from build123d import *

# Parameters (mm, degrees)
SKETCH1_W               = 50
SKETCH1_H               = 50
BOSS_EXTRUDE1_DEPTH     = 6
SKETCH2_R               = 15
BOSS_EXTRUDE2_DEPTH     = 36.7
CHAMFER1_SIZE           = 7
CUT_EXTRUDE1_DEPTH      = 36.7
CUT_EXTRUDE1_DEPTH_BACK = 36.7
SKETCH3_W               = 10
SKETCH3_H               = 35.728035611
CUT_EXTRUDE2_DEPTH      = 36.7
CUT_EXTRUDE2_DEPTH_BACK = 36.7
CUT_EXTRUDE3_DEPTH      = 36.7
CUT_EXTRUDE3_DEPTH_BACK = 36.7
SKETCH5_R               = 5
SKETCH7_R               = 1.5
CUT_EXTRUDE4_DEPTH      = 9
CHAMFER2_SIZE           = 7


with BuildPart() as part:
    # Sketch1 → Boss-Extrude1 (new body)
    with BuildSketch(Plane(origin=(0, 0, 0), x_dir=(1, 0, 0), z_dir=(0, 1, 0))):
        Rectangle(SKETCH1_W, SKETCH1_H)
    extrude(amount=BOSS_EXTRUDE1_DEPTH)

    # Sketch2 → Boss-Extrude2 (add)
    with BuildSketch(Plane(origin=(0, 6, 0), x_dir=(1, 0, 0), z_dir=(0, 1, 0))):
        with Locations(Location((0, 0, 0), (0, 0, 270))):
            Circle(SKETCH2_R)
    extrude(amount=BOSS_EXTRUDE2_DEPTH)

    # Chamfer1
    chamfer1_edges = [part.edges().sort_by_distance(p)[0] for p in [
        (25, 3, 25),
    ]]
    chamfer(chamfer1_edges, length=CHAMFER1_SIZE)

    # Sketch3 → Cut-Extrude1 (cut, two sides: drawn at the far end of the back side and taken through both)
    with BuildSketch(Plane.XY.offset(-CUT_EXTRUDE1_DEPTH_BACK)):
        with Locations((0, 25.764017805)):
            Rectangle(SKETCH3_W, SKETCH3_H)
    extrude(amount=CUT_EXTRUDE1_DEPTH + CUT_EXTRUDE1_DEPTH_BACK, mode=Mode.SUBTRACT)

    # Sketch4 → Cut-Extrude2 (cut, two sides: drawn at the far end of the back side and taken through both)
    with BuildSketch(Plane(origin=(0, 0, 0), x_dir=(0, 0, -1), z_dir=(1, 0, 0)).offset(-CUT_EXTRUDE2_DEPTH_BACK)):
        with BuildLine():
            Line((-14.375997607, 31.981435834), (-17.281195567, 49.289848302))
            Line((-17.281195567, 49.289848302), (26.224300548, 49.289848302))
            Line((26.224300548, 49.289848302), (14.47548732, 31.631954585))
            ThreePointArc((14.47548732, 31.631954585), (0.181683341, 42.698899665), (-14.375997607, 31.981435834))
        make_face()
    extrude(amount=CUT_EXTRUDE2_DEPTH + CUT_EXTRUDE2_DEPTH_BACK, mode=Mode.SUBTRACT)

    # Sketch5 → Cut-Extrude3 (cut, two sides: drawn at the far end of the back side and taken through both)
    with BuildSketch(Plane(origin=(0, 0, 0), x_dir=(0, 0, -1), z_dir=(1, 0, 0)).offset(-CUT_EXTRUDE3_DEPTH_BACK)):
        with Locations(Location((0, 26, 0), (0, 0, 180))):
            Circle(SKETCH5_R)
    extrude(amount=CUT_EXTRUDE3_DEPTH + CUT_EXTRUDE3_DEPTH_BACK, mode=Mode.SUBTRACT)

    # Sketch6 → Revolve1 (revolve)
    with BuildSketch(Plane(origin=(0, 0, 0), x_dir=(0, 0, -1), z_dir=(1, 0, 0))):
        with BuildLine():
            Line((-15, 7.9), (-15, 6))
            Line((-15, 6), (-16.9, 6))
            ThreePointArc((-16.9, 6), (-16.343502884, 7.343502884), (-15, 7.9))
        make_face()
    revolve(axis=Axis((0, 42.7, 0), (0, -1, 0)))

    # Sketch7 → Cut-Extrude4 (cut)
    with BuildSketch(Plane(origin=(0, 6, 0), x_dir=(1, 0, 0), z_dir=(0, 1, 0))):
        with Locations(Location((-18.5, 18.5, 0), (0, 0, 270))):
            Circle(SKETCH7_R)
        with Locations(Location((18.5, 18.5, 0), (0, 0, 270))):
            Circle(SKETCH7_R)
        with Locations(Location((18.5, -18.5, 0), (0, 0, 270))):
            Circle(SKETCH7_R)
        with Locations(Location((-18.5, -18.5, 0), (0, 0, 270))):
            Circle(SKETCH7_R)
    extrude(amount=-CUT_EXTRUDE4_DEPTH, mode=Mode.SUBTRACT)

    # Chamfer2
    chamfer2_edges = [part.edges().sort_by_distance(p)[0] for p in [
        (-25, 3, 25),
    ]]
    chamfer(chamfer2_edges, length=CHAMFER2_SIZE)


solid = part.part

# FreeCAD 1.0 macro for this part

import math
import FreeCAD as App
import Part
import Sketcher
Q = App.Units.Quantity


def edges_at(feature, points):
    """Names of the edges that pass closest to the given points."""
    edges = feature.Shape.Edges
    near = lambda p: min(range(len(edges)), key=lambda i: edges[i].distToShape(Part.Vertex(*p))[0])
    return sorted({f"Edge{near(p) + 1}" for p in points})


def add_polygon(sketch, points):
    """Adds a closed chain of lines whose ends are joined by coincident constraints."""
    first, n = sketch.GeometryCount, len(points)
    for a, b in zip(points, points[1:] + points[:1]):
        sketch.addGeometry(Part.LineSegment(App.Vector(*a, 0), App.Vector(*b, 0)), False)
    for i in range(n):
        sketch.addConstraint(Sketcher.Constraint("Coincident", first + i, 2, first + (i + 1) % n, 1))

doc = App.newDocument("Part")
body = doc.addObject("PartDesign::Body", "Body")

# Sketch on XZ plane
sketch1 = body.newObject("Sketcher::SketchObject", "Sketch")
sketch1.AttachmentSupport = (doc.getObject("XZ_Plane"), [""])
sketch1.MapMode = "FlatFace"
add_polygon(sketch1, [(-25, -25), (-25, 25), (25, 25), (25, -25)])  # lines 0-3
sketch1.addConstraint(Sketcher.Constraint("Vertical", 0))
sketch1.addConstraint(Sketcher.Constraint("Horizontal", 1))
sketch1.addConstraint(Sketcher.Constraint("Vertical", 2))
sketch1.addConstraint(Sketcher.Constraint("Horizontal", 3))
sketch1.addConstraint(Sketcher.Constraint("Symmetric", 0, 2, 2, 2, -1, 1))
sketch1.addConstraint(Sketcher.Constraint("Equal", 3, 0))
sketch1.addConstraint(Sketcher.Constraint("DistanceX", 1, 1, 1, 2, Q("50 mm")))
pad1 = body.newObject("PartDesign::Pad", "Pad")
pad1.Profile = sketch1
pad1.Length = 6
pad1.Reversed = True

# Sketch on XZ plane
sketch2 = body.newObject("Sketcher::SketchObject", "Sketch001")
sketch2.AttachmentSupport = (doc.getObject("XZ_Plane"), [""])
sketch2.MapMode = "FlatFace"
sketch2.AttachmentOffset = App.Placement(App.Vector(0, 0, -6), App.Rotation())
sketch2.addGeometry(Part.Circle(App.Vector(0, 0, 0), App.Vector(0, 0, 1), 15), False)
sketch2.addConstraint(Sketcher.Constraint("Coincident", 0, 3, -1, 1))
sketch2.addConstraint(Sketcher.Constraint("Diameter", 0, Q("30 mm")))
pad2 = body.newObject("PartDesign::Pad", "Pad001")
pad2.Profile = sketch2
pad2.Length = 36.7
pad2.Reversed = True
doc.recompute()

chamfer = body.newObject("PartDesign::Chamfer", "Chamfer")
chamfer.Base = (pad2, edges_at(pad2, [(25, 3, 25)]))
chamfer.Size = 7

# Sketch on XY plane
sketch3 = body.newObject("Sketcher::SketchObject", "Sketch002")
sketch3.AttachmentSupport = (doc.getObject("XY_Plane"), [""])
sketch3.MapMode = "FlatFace"
add_polygon(sketch3, [(-5, 44), (-5, 8), (5, 8), (5, 44)])  # lines 0-3
sketch3.addConstraint(Sketcher.Constraint("Vertical", 0))
sketch3.addConstraint(Sketcher.Constraint("Horizontal", 1))
sketch3.addConstraint(Sketcher.Constraint("Vertical", 2))
sketch3.addConstraint(Sketcher.Constraint("Horizontal", 3))
sketch3.addConstraint(Sketcher.Constraint("DistanceX", 1, 1, 1, 2, Q("10 mm")))
sketch3.addConstraint(Sketcher.Constraint("DistanceX", 0, 2, -1, 1, Q("5 mm")))
sketch3.addConstraint(Sketcher.Constraint("DistanceY", -1, 1, 0, 2, Q("7.9 mm")))
sketch3.addConstraint(Sketcher.Constraint("DistanceY", 0, 2, 0, 1, Q("35.728036 mm")))
pocket1 = body.newObject("PartDesign::Pocket", "Pocket")
pocket1.Profile = sketch3
pocket1.Type = "ThroughAll"
pocket1.Midplane = True

# Sketch on YZ plane
sketch4 = body.newObject("Sketcher::SketchObject", "Sketch003")
sketch4.AttachmentSupport = (doc.getObject("YZ_Plane"), [""])
sketch4.MapMode = "FlatFace"
sketch4.addGeometry(Part.LineSegment(App.Vector(49, 17, 0), App.Vector(32, 14, 0)), False)
sketch4.addGeometry(Part.ArcOfCircle(Part.Circle(App.Vector(28, 0, 0), App.Vector(0, 0, 1), 15), math.radians(-75), math.radians(73)), False)
sketch4.addGeometry(Part.LineSegment(App.Vector(32, -14, 0), App.Vector(49, -26, 0)), False)
sketch4.addGeometry(Part.LineSegment(App.Vector(49, -26, 0), App.Vector(49, 17, 0)), False)
sketch4.addConstraint(Sketcher.Constraint("Coincident", 0, 2, 1, 2))
sketch4.addConstraint(Sketcher.Constraint("Coincident", 1, 1, 2, 1))
sketch4.addConstraint(Sketcher.Constraint("Coincident", 2, 2, 3, 1))
sketch4.addConstraint(Sketcher.Constraint("Coincident", 3, 2, 0, 1))
sketch4.addConstraint(Sketcher.Constraint("Vertical", 3))
sketch4.addConstraint(Sketcher.Constraint("PointOnObject", 1, 3, -1))
sketch4.addConstraint(Sketcher.Constraint("Radius", 1, Q("15 mm")))
sketch4.addConstraint(Sketcher.Constraint("DistanceX", -1, 1, 1, 3, Q("27.7 mm")))
sketch4.addConstraint(Sketcher.Constraint("DistanceY", 2, 2, -1, 1, Q("26.224301 mm")))
sketch4.addConstraint(Sketcher.Constraint("DistanceY", 2, 2, 0, 2, Q("40.600298 mm")))
sketch4.addConstraint(Sketcher.Constraint("DistanceY", 3, 1, 3, 2, Q("43.505496 mm")))
sketch4.addConstraint(Sketcher.Constraint("DistanceX", -1, 1, 2, 2, Q("49.289848 mm")))
sketch4.addConstraint(Sketcher.Constraint("DistanceX", 1, 1, 0, 2, Q("0.349481 mm")))
pocket2 = body.newObject("PartDesign::Pocket", "Pocket001")
pocket2.Profile = sketch4
pocket2.Type = "ThroughAll"
pocket2.Midplane = True

# Sketch on YZ plane
sketch5 = body.newObject("Sketcher::SketchObject", "Sketch004")
sketch5.AttachmentSupport = (doc.getObject("YZ_Plane"), [""])
sketch5.MapMode = "FlatFace"
sketch5.addGeometry(Part.Circle(App.Vector(26, 0, 0), App.Vector(0, 0, 1), 5), False)
sketch5.addConstraint(Sketcher.Constraint("PointOnObject", 0, 3, -1))
sketch5.addConstraint(Sketcher.Constraint("Diameter", 0, Q("10 mm")))
sketch5.addConstraint(Sketcher.Constraint("DistanceX", -1, 1, 0, 3, Q("26 mm")))
pocket3 = body.newObject("PartDesign::Pocket", "Pocket002")
pocket3.Profile = sketch5
pocket3.Type = "ThroughAll"
pocket3.Midplane = True

# Sketch on YZ plane
sketch6 = body.newObject("Sketcher::SketchObject", "Sketch005")
sketch6.AttachmentSupport = (doc.getObject("YZ_Plane"), [""])
sketch6.MapMode = "FlatFace"
sketch6.addGeometry(Part.LineSegment(App.Vector(6, 15, 0), App.Vector(7.9, 15, 0)), False)
sketch6.addGeometry(Part.ArcOfCircle(Part.Circle(App.Vector(6, 15, 0), App.Vector(0, 0, 1), 1.9), math.radians(0), math.radians(90)), False)
sketch6.addGeometry(Part.LineSegment(App.Vector(6, 16.9, 0), App.Vector(6, 15, 0)), False)
sketch6.addConstraint(Sketcher.Constraint("Coincident", 0, 2, 1, 1))
sketch6.addConstraint(Sketcher.Constraint("Coincident", 1, 2, 2, 1))
sketch6.addConstraint(Sketcher.Constraint("Coincident", 2, 2, 0, 1))
sketch6.addConstraint(Sketcher.Constraint("Horizontal", 0))
sketch6.addConstraint(Sketcher.Constraint("Vertical", 2))
sketch6.addConstraint(Sketcher.Constraint("Coincident", 2, 2, 1, 3))
sketch6.addConstraint(Sketcher.Constraint("Radius", 1, Q("1.9 mm")))
sketch6.addConstraint(Sketcher.Constraint("DistanceX", -1, 1, 1, 3, Q("6 mm")))
sketch6.addConstraint(Sketcher.Constraint("DistanceY", -1, 1, 1, 3, Q("15 mm")))
revolution = body.newObject("PartDesign::Revolution", "Revolution")
revolution.Profile = sketch6
revolution.ReferenceAxis = (sketch6, ["H_Axis"])
revolution.Angle = 360

# Sketch on XZ plane
sketch7 = body.newObject("Sketcher::SketchObject", "Sketch006")
sketch7.AttachmentSupport = (doc.getObject("XZ_Plane"), [""])
sketch7.MapMode = "FlatFace"
sketch7.AttachmentOffset = App.Placement(App.Vector(0, 0, -6), App.Rotation())
sketch7.addGeometry(Part.Circle(App.Vector(-18.5, -18.5, 0), App.Vector(0, 0, 1), 1.5), False)
sketch7.addGeometry(Part.Circle(App.Vector(18.5, -18.5, 0), App.Vector(0, 0, 1), 1.5), False)
sketch7.addGeometry(Part.Circle(App.Vector(18.5, 18.5, 0), App.Vector(0, 0, 1), 1.5), False)
sketch7.addGeometry(Part.Circle(App.Vector(-18.5, 18.5, 0), App.Vector(0, 0, 1), 1.5), False)
sketch7.addConstraint(Sketcher.Constraint("Equal", 0, 1))
sketch7.addConstraint(Sketcher.Constraint("Equal", 1, 2))
sketch7.addConstraint(Sketcher.Constraint("Equal", 2, 3))
sketch7.addConstraint(Sketcher.Constraint("Symmetric", 0, 3, 2, 3, -1, 1))
sketch7.addConstraint(Sketcher.Constraint("Symmetric", 1, 3, 3, 3, -1, 1))
sketch7.addConstraint(Sketcher.Constraint("Symmetric", 0, 3, 1, 3, -2))
sketch7.addConstraint(Sketcher.Constraint("Diameter", 0, Q("3 mm")))
sketch7.addConstraint(Sketcher.Constraint("DistanceX", 0, 3, 1, 3, Q("37 mm")))
sketch7.addConstraint(Sketcher.Constraint("DistanceY", 1, 3, 2, 3, Q("37 mm")))
pocket4 = body.newObject("PartDesign::Pocket", "Pocket003")
pocket4.Profile = sketch7
pocket4.Length = 9
pocket4.Reversed = True
doc.recompute()

chamfer2 = body.newObject("PartDesign::Chamfer", "Chamfer001")
chamfer2.Base = (pocket4, edges_at(pocket4, [(-25, 3, 25)]))
chamfer2.Size = 7

doc.recompute()
